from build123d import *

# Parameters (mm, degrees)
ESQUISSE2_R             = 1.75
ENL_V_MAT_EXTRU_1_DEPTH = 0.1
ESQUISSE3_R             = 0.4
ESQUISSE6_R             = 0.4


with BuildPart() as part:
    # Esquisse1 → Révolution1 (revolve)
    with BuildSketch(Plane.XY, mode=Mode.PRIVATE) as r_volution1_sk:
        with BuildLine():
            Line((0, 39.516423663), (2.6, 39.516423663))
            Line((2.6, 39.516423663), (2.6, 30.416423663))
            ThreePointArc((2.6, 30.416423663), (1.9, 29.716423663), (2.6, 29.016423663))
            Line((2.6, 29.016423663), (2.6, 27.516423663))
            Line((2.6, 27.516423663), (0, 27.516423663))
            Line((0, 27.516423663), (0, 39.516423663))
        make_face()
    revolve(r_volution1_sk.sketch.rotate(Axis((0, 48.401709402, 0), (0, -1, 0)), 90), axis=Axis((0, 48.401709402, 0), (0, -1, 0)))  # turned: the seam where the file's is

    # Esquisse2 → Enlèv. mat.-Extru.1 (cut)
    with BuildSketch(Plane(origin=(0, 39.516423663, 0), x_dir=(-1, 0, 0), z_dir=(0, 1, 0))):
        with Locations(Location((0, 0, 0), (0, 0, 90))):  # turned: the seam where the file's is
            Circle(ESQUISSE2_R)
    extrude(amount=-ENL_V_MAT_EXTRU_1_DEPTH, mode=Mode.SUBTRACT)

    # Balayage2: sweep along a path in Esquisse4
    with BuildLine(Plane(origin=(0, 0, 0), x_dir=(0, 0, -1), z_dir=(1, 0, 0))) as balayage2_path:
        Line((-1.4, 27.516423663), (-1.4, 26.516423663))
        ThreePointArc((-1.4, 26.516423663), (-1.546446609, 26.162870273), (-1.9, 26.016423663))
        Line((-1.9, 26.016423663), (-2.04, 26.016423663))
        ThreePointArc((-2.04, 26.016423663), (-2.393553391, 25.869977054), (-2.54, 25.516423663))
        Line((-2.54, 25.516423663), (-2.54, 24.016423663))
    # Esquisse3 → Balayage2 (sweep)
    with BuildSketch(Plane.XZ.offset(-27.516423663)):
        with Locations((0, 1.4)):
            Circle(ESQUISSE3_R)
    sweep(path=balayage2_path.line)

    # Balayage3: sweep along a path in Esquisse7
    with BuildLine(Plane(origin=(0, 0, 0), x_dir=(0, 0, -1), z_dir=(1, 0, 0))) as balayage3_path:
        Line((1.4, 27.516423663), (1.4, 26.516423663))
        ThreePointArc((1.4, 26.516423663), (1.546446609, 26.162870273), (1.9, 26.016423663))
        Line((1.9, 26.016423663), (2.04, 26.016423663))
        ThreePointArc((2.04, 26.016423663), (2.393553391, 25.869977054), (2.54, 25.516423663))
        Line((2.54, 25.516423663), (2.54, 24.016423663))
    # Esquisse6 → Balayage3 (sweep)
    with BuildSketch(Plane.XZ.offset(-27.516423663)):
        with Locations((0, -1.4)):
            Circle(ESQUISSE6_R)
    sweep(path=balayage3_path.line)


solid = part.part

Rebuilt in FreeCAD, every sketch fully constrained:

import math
import FreeCAD as App
import Part
import Sketcher

doc = App.newDocument("Part")
params = doc.addObject("Spreadsheet::Sheet", "Params")
for row, (alias, value) in enumerate([
    ("sketch1_radius", "0.7 mm"),
    ("sketch1_height", "12 mm"),
    ("sketch1_width", "2.6 mm"),
    ("sketch1_height2", "1.5 mm"),
    ("revolution_angle", "360 deg"),
    ("sketch2_diameter", "3.5 mm"),
    ("pocket1_length", "0.1 mm"),
    ("sketch3_diameter", "0.8 mm"),
    ("sketch4_radius", "0.5 mm"),
    ("sketch4_width", "1 mm"),
    ("sketch4_width2", "1.5 mm"),
    ("sketch4_height", "0.14 mm"),
    ("sketch5_diameter", "0.8 mm"),
    ("sketch6_radius", "0.5 mm"),
    ("sketch6_width", "1 mm"),
    ("sketch6_width2", "1.5 mm"),
    ("sketch6_height", "0.14 mm"),
], start=1):
    params.set(f"A{row}", alias)
    params.set(f"B{row}", "=" + value)
    params.setAlias(f"B{row}", alias)

body = doc.addObject("PartDesign::Body", "Body")

# Sketch on XY plane
sketch1 = body.newObject("Sketcher::SketchObject", "Sketch")
sketch1.AttachmentSupport = (doc.getObject("XY_Plane"), [""])
sketch1.MapMode = "FlatFace"
sketch1.addGeometry(Part.LineSegment(App.Vector(2.6, 39.516424, 0), App.Vector(0, 39.516424, 0)), False)
sketch1.addGeometry(Part.LineSegment(App.Vector(0, 39.516424, 0), App.Vector(0, 27.516424, 0)), False)
sketch1.addGeometry(Part.LineSegment(App.Vector(0, 27.516424, 0), App.Vector(2.6, 27.516424, 0)), False)
sketch1.addGeometry(Part.LineSegment(App.Vector(2.6, 27.516424, 0), App.Vector(2.6, 29.016424, 0)), False)
sketch1.addGeometry(Part.ArcOfCircle(Part.Circle(App.Vector(2.6, 29.716424, 0), App.Vector(0, 0, 1), 0.7), math.radians(90), math.radians(270)), False)
sketch1.addGeometry(Part.LineSegment(App.Vector(2.6, 30.416424, 0), App.Vector(2.6, 39.516424, 0)), False)
sketch1.addConstraint(Sketcher.Constraint("Coincident", 0, 2, 1, 1))
sketch1.addConstraint(Sketcher.Constraint("Coincident", 1, 2, 2, 1))
sketch1.addConstraint(Sketcher.Constraint("Coincident", 2, 2, 3, 1))
sketch1.addConstraint(Sketcher.Constraint("Coincident", 3, 2, 4, 2))
sketch1.addConstraint(Sketcher.Constraint("Coincident", 4, 1, 5, 1))
sketch1.addConstraint(Sketcher.Constraint("Coincident", 5, 2, 0, 1))
sketch1.addConstraint(Sketcher.Constraint("Horizontal", 0))
sketch1.addConstraint(Sketcher.Constraint("Vertical", 1))
sketch1.addConstraint(Sketcher.Constraint("Horizontal", 2))
sketch1.addConstraint(Sketcher.Constraint("Vertical", 3))
sketch1.addConstraint(Sketcher.Constraint("Vertical", 5))
sketch1.addConstraint(Sketcher.Constraint("PointOnObject", 0, 2, -2))
sketch1.addConstraint(Sketcher.Constraint("Vertical", 4, 3, 2, 2))
sketch1.addConstraint(Sketcher.Constraint("Vertical", 3, 2, 4, 1))
sketch1.addConstraint(Sketcher.Constraint("Radius", 4, 0.7))
sketch1.addConstraint(Sketcher.Constraint("DistanceY", 1, 2, 1, 1, 12.0))
sketch1.addConstraint(Sketcher.Constraint("DistanceX", 0, 2, 0, 1, 2.6))
sketch1.addConstraint(Sketcher.Constraint("DistanceY", 3, 1, 3, 2, 1.5))
sketch1.addConstraint(Sketcher.Constraint("DistanceY", -1, 1, 4, 3, 29.716424))
sketch1.setExpression("Constraints[14]", "Params.sketch1_radius")
sketch1.setExpression("Constraints[15]", "Params.sketch1_height")
sketch1.setExpression("Constraints[16]", "Params.sketch1_width")
sketch1.setExpression("Constraints[17]", "Params.sketch1_height2")
revolution = body.newObject("PartDesign::Revolution", "Revolution")
revolution.Profile = sketch1
revolution.ReferenceAxis = (sketch1, ["V_Axis"])
revolution.setExpression("Angle", "Params.revolution_angle")

# Sketch on XZ plane
sketch2 = body.newObject("Sketcher::SketchObject", "Sketch001")
sketch2.AttachmentSupport = (doc.getObject("XZ_Plane"), [""])
sketch2.MapMode = "FlatFace"
sketch2.AttachmentOffset = App.Placement(App.Vector(0, 0, -39.516424), App.Rotation())
sketch2.addGeometry(Part.Circle(App.Vector(0, 0, 0), App.Vector(0, 0, 1), 1.75), False)
sketch2.addConstraint(Sketcher.Constraint("Coincident", 0, 3, -1, 1))
sketch2.addConstraint(Sketcher.Constraint("Diameter", 0, 3.5))
sketch2.setExpression("Constraints[1]", "Params.sketch2_diameter")
pocket1 = body.newObject("PartDesign::Pocket", "Pocket")
pocket1.Profile = sketch2
pocket1.setExpression("Length", "Params.pocket1_length")
pocket1.Reversed = True

# Sketch on XZ plane
sketch3 = body.newObject("Sketcher::SketchObject", "Sketch002")
sketch3.AttachmentSupport = (doc.getObject("XZ_Plane"), [""])
sketch3.MapMode = "FlatFace"
sketch3.AttachmentOffset = App.Placement(App.Vector(0, 0, -27.516424), App.Rotation())
sketch3.addGeometry(Part.Circle(App.Vector(0, 1.4, 0), App.Vector(0, 0, 1), 0.4), False)
sketch3.addConstraint(Sketcher.Constraint("PointOnObject", 0, 3, -2))
sketch3.addConstraint(Sketcher.Constraint("Diameter", 0, 0.8))
sketch3.addConstraint(Sketcher.Constraint("DistanceY", -1, 1, 0, 3, 1.4))
sketch3.setExpression("Constraints[1]", "Params.sketch3_diameter")

# Sketch on YZ plane
sketch4 = body.newObject("Sketcher::SketchObject", "Sketch003")
sketch4.AttachmentSupport = (doc.getObject("YZ_Plane"), [""])
sketch4.MapMode = "FlatFace"
sketch4.addGeometry(Part.LineSegment(App.Vector(27.516424, 1.4, 0), App.Vector(26.516424, 1.4, 0)), False)
sketch4.addGeometry(Part.ArcOfCircle(Part.Circle(App.Vector(26.516424, 1.9, 0), App.Vector(0, 0, 1), 0.5), math.radians(180), math.radians(270)), False)
sketch4.addGeometry(Part.LineSegment(App.Vector(26.016424, 1.9, 0), App.Vector(26.016424, 2.04, 0)), False)
sketch4.addGeometry(Part.ArcOfCircle(Part.Circle(App.Vector(25.516424, 2.04, 0), App.Vector(0, 0, 1), 0.5), math.radians(0), math.radians(90)), False)
sketch4.addGeometry(Part.LineSegment(App.Vector(25.516424, 2.54, 0), App.Vector(24.016424, 2.54, 0)), False)
sketch4.addConstraint(Sketcher.Constraint("Tangent", 0, 2, 1, 2))
sketch4.addConstraint(Sketcher.Constraint("Tangent", 1, 1, 2, 1))
sketch4.addConstraint(Sketcher.Constraint("Tangent", 2, 2, 3, 1))
sketch4.addConstraint(Sketcher.Constraint("Tangent", 3, 2, 4, 1))
sketch4.addConstraint(Sketcher.Constraint("Horizontal", 0))
sketch4.addConstraint(Sketcher.Constraint("Vertical", 2))
sketch4.addConstraint(Sketcher.Constraint("Horizontal", 4))
sketch4.addConstraint(Sketcher.Constraint("Equal", 1, 3))
sketch4.addConstraint(Sketcher.Constraint("Radius", 1, 0.5))
sketch4.addConstraint(Sketcher.Constraint("DistanceX", 0, 2, 0, 1, 1.0))
sketch4.addConstraint(Sketcher.Constraint("DistanceX", 4, 2, 4, 1, 1.5))
sketch4.addConstraint(Sketcher.Constraint("DistanceY", 2, 1, 2, 2, 0.14))
sketch4.addConstraint(Sketcher.Constraint("DistanceY", -1, 1, 1, 3, 1.9))
sketch4.addConstraint(Sketcher.Constraint("DistanceX", -1, 1, 1, 3, 26.516424))
sketch4.setExpression("Constraints[8]", "Params.sketch4_radius")
sketch4.setExpression("Constraints[9]", "Params.sketch4_width")
sketch4.setExpression("Constraints[10]", "Params.sketch4_width2")
sketch4.setExpression("Constraints[11]", "Params.sketch4_height")
doc.recompute()

additivepipe = body.newObject("PartDesign::AdditivePipe", "AdditivePipe")
additivepipe.Profile = sketch3
additivepipe.Spine = (sketch4, ["Edge1", "Edge2", "Edge3", "Edge4", "Edge5"])

# Sketch on XZ plane
sketch5 = body.newObject("Sketcher::SketchObject", "Sketch004")
sketch5.AttachmentSupport = (doc.getObject("XZ_Plane"), [""])
sketch5.MapMode = "FlatFace"
sketch5.AttachmentOffset = App.Placement(App.Vector(0, 0, -27.516424), App.Rotation())
sketch5.addGeometry(Part.Circle(App.Vector(0, -1.4, 0), App.Vector(0, 0, 1), 0.4), False)
sketch5.addConstraint(Sketcher.Constraint("PointOnObject", 0, 3, -2))
sketch5.addConstraint(Sketcher.Constraint("Diameter", 0, 0.8))
sketch5.addConstraint(Sketcher.Constraint("DistanceY", 0, 3, -1, 1, 1.4))
sketch5.setExpression("Constraints[1]", "Params.sketch5_diameter")

# Sketch on YZ plane
sketch6 = body.newObject("Sketcher::SketchObject", "Sketch005")
sketch6.AttachmentSupport = (doc.getObject("YZ_Plane"), [""])
sketch6.MapMode = "FlatFace"
sketch6.addGeometry(Part.LineSegment(App.Vector(27.516424, -1.4, 0), App.Vector(26.516424, -1.4, 0)), False)
sketch6.addGeometry(Part.ArcOfCircle(Part.Circle(App.Vector(26.516424, -1.9, 0), App.Vector(0, 0, 1), 0.5), math.radians(90), math.radians(180)), False)
sketch6.addGeometry(Part.LineSegment(App.Vector(26.016424, -1.9, 0), App.Vector(26.016424, -2.04, 0)), False)
sketch6.addGeometry(Part.ArcOfCircle(Part.Circle(App.Vector(25.516424, -2.04, 0), App.Vector(0, 0, 1), 0.5), math.radians(-90), math.radians(0)), False)
sketch6.addGeometry(Part.LineSegment(App.Vector(25.516424, -2.54, 0), App.Vector(24.016424, -2.54, 0)), False)
sketch6.addConstraint(Sketcher.Constraint("Tangent", 0, 2, 1, 1))
sketch6.addConstraint(Sketcher.Constraint("Tangent", 1, 2, 2, 1))
sketch6.addConstraint(Sketcher.Constraint("Tangent", 2, 2, 3, 2))
sketch6.addConstraint(Sketcher.Constraint("Tangent", 3, 1, 4, 1))
sketch6.addConstraint(Sketcher.Constraint("Horizontal", 0))
sketch6.addConstraint(Sketcher.Constraint("Vertical", 2))
sketch6.addConstraint(Sketcher.Constraint("Horizontal", 4))
sketch6.addConstraint(Sketcher.Constraint("Equal", 1, 3))
sketch6.addConstraint(Sketcher.Constraint("Radius", 1, 0.5))
sketch6.addConstraint(Sketcher.Constraint("DistanceX", 0, 2, 0, 1, 1.0))
sketch6.addConstraint(Sketcher.Constraint("DistanceX", 4, 2, 4, 1, 1.5))
sketch6.addConstraint(Sketcher.Constraint("DistanceY", 2, 2, 2, 1, 0.14))
sketch6.addConstraint(Sketcher.Constraint("DistanceY", 1, 3, -1, 1, 1.9))
sketch6.addConstraint(Sketcher.Constraint("DistanceX", -1, 1, 1, 3, 26.516424))
sketch6.setExpression("Constraints[8]", "Params.sketch6_radius")
sketch6.setExpression("Constraints[9]", "Params.sketch6_width")
sketch6.setExpression("Constraints[10]", "Params.sketch6_width2")
sketch6.setExpression("Constraints[11]", "Params.sketch6_height")
doc.recompute()

additivepipe2 = body.newObject("PartDesign::AdditivePipe", "AdditivePipe001")
additivepipe2.Profile = sketch5
additivepipe2.Spine = (sketch6, ["Edge1", "Edge2", "Edge3", "Edge4", "Edge5"])

doc.recompute()
